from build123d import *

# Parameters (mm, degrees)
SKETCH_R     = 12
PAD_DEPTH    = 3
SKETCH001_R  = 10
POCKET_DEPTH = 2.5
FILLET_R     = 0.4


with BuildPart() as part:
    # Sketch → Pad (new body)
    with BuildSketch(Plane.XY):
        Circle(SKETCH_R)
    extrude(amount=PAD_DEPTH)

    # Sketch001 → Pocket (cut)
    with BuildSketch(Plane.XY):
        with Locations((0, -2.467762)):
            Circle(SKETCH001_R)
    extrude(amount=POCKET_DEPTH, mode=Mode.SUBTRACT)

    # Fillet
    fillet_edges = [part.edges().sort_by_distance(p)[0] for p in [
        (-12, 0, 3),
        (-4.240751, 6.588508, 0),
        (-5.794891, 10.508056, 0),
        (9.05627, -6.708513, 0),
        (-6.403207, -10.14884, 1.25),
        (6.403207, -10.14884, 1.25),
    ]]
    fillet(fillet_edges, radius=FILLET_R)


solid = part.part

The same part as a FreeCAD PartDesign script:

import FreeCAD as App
import Part
import Sketcher


def edges_at(feature, points):
    """Names of the edges that pass closest to the given points."""
    edges = feature.Shape.Edges
    near = lambda p: min(range(len(edges)), key=lambda i: edges[i].distToShape(Part.Vertex(*p))[0])
    return sorted({f"Edge{near(p) + 1}" for p in points})

doc = App.newDocument("Part")
body = doc.addObject("PartDesign::Body", "Body")

# Sketch on XY plane
sketch1 = doc.addObject("Sketcher::SketchObject", "Sketch")
body.addObject(sketch1)
sketch1.AttachmentSupport = (doc.XY_Plane, [""])
sketch1.MapMode = "FlatFace"
sketch1.addGeometry(Part.Circle(App.Vector(0, 0, 0), App.Vector(0, 0, 1), 12), False)
sketch1.addConstraint(Sketcher.Constraint("Coincident", 0, 3, -1, 1))
sketch1.addConstraint(Sketcher.Constraint("Diameter", 0, 24.0))
pad1 = doc.addObject("PartDesign::Pad", "Pad")
body.addObject(pad1)
pad1.Profile = sketch1
pad1.Length = 3

# Sketch on XY plane
sketch2 = doc.addObject("Sketcher::SketchObject", "Sketch001")
body.addObject(sketch2)
sketch2.AttachmentSupport = (doc.XY_Plane, [""])
sketch2.MapMode = "FlatFace"
sketch2.addGeometry(Part.Circle(App.Vector(0, -2, 0), App.Vector(0, 0, 1), 10), False)
sketch2.addConstraint(Sketcher.Constraint("PointOnObject", 0, 3, -2))
sketch2.addConstraint(Sketcher.Constraint("Diameter", 0, 20.0))
sketch2.addConstraint(Sketcher.Constraint("DistanceY", 0, 3, -1, 1, 2.467762))
pocket1 = doc.addObject("PartDesign::Pocket", "Pocket")
body.addObject(pocket1)
pocket1.Profile = sketch2
pocket1.Length = 2.5
pocket1.Reversed = True
doc.recompute()

fillet = doc.addObject("PartDesign::Fillet", "Fillet")
body.addObject(fillet)
fillet.Base = (pocket1, edges_at(pocket1, [
    (-12, 0, 3),
    (0, 7.532, 0),
    (-5.795, 10.508, 0),
    (0, 7.532, 0),
    (-6.403, -10.149, 1.25),
    (6.403, -10.149, 1.25),
]))
fillet.Radius = 0.4

doc.recompute()
